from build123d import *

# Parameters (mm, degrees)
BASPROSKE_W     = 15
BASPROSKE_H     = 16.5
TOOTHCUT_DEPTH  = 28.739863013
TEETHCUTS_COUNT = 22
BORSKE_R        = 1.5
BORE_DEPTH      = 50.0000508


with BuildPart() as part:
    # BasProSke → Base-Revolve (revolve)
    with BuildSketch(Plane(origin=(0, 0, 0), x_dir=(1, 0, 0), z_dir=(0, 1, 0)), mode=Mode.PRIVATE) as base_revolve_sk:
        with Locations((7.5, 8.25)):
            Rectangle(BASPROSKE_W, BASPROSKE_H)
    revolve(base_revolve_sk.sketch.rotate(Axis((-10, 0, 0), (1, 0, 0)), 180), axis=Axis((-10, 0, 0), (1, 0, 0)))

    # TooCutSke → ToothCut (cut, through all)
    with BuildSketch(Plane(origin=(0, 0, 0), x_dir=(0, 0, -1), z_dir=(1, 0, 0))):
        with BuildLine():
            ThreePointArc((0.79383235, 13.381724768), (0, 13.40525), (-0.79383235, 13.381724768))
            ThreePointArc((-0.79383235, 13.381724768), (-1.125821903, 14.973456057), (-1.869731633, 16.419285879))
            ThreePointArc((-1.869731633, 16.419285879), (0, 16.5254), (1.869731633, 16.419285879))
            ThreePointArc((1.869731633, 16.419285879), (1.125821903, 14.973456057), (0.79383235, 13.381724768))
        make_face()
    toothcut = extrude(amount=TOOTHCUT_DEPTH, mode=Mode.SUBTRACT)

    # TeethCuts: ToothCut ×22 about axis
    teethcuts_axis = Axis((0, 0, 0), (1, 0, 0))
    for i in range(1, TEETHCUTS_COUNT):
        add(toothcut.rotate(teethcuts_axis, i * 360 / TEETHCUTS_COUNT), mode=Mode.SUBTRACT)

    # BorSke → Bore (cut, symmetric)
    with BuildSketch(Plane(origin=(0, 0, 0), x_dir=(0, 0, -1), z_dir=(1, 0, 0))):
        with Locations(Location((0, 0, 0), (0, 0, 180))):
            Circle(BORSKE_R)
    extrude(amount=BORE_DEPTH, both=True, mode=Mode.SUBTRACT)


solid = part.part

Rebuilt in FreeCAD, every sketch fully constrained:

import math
import FreeCAD as App
import Part
import Sketcher

V = App.Vector
Q = App.Units.Quantity


def add_polygon(sketch, points):
    """Adds a closed chain of lines whose ends are joined by coincident constraints."""
    first, n = sketch.GeometryCount, len(points)
    for a, b in zip(points, points[1:] + points[:1]):
        sketch.addGeometry(Part.LineSegment(App.Vector(*a, 0), App.Vector(*b, 0)), False)
    for i in range(n):
        sketch.addConstraint(Sketcher.Constraint("Coincident", first + i, 2, first + (i + 1) % n, 1))

doc = App.newDocument("Part")
params = doc.addObject("Spreadsheet::Sheet", "Params")
for row, (alias, value) in enumerate([
    ("sketch1_width", "15 mm"),
    ("sketch1_height", "16.5 mm"),
    ("revolution_angle", "360 deg"),
    ("sketch2_radius", "6.05 mm"),
    ("sketch3_diameter", "3 mm"),
    ("pocket2_length", "100.000102 mm"),
], start=1):
    params.set(f"A{row}", alias)
    params.set(f"B{row}", "=" + value)
    params.setAlias(f"B{row}", alias)

body = doc.addObject("PartDesign::Body", "Body")

sketch1 = body.newObject("Sketcher::SketchObject", "Sketch")
sketch1.AttachmentSupport = (doc.getObject("XZ_Plane"), [""])
sketch1.MapMode = "FlatFace"
add_polygon(sketch1, [(0, -16), (0, 0), (15, 0), (15, -16)])
sketch1.addConstraint([
    Sketcher.Constraint("Vertical", 0),
    Sketcher.Constraint("Horizontal", 1),
    Sketcher.Constraint("Vertical", 2),
    Sketcher.Constraint("Horizontal", 3),
    Sketcher.Constraint("Coincident", 0, 2, -1, 1),
    Sketcher.Constraint("DistanceX", 1, 1, 1, 2, Q("15 mm")),
    Sketcher.Constraint("DistanceY", 0, 1, 0, 2, Q("16.5 mm")),
])
sketch1.setExpression("Constraints[9]", "Params.sketch1_width")
sketch1.setExpression("Constraints[10]", "Params.sketch1_height")
revolution = body.newObject("PartDesign::Revolution", "Revolution")
revolution.Profile = sketch1
revolution.ReferenceAxis = (sketch1, ["H_Axis"])
revolution.setExpression("Angle", "Params.revolution_angle")

sketch2 = body.newObject("Sketcher::SketchObject", "Sketch001")
sketch2.AttachmentSupport = (doc.getObject("YZ_Plane"), [""])
sketch2.MapMode = "FlatFace"
sketch2.addGeometry([
    Part.ArcOfCircle(Part.Circle(V(0, 0, 0), V(0, 0, 1), 13.4), math.radians(-3.39), math.radians(3.39)),
    Part.ArcOfCircle(Part.Circle(V(13, -6.8, 0), V(0, 0, 1), 6), math.radians(55), math.radians(86)),
    Part.ArcOfCircle(Part.Circle(V(0, 0, 0), V(0, 0, 1), 16.5), math.radians(-6.5), math.radians(6.5)),
    Part.ArcOfCircle(Part.Circle(V(13, 6.8, 0), V(0, 0, 1), 6), math.radians(-86), math.radians(-55)),
], False)
sketch2.addConstraint([
    Sketcher.Constraint("Coincident", 0, 1, 1, 2),
    Sketcher.Constraint("Coincident", 1, 1, 2, 1),
    Sketcher.Constraint("Coincident", 2, 2, 3, 2),
    Sketcher.Constraint("Coincident", 3, 1, 0, 2),
    Sketcher.Constraint("Coincident", 0, 3, -1, 1),
    Sketcher.Constraint("Coincident", 2, 3, -1, 1),
    Sketcher.Constraint("Equal", 1, 3),
    Sketcher.Constraint("Symmetric", 1, 3, 3, 3, -1),
    Sketcher.Constraint("Radius", 1, Q("6.05 mm")),
    Sketcher.Constraint("Radius", 2, Q("16.5254 mm")),
    Sketcher.Constraint("Radius", 0, Q("13.40525 mm")),
    Sketcher.Constraint("DistanceY", 1, 1, 0, 1, Q("1.075899 mm")),
    Sketcher.Constraint("DistanceX", -1, 1, 1, 3, Q("12.95352 mm")),
])
sketch2.setExpression("Constraints[8]", "Params.sketch2_radius")
pocket1 = body.newObject("PartDesign::Pocket", "Pocket")
pocket1.Profile = sketch2
pocket1.Type = "ThroughAll"
pocket1.Reversed = True
doc.recompute()

polarpattern = body.newObject("PartDesign::PolarPattern", "PolarPattern")
polarpattern.Originals = [pocket1]
polarpattern.Axis = (doc.getObject("X_Axis"), [""])
polarpattern.Angle = 360
polarpattern.Occurrences = 22
body.Tip = polarpattern

sketch3 = body.newObject("Sketcher::SketchObject", "Sketch002")
sketch3.AttachmentSupport = (doc.getObject("YZ_Plane"), [""])
sketch3.MapMode = "FlatFace"
sketch3.addGeometry(Part.Circle(V(0, 0, 0), V(0, 0, 1), 1.5), False)
sketch3.addConstraint([
    Sketcher.Constraint("Coincident", 0, 3, -1, 1),
    Sketcher.Constraint("Diameter", 0, Q("3 mm")),
])
sketch3.setExpression("Constraints[1]", "Params.sketch3_diameter")
pocket2 = body.newObject("PartDesign::Pocket", "Pocket001")
pocket2.Profile = sketch3
pocket2.setExpression("Length", "Params.pocket2_length")
pocket2.Midplane = True

doc.recompute()
